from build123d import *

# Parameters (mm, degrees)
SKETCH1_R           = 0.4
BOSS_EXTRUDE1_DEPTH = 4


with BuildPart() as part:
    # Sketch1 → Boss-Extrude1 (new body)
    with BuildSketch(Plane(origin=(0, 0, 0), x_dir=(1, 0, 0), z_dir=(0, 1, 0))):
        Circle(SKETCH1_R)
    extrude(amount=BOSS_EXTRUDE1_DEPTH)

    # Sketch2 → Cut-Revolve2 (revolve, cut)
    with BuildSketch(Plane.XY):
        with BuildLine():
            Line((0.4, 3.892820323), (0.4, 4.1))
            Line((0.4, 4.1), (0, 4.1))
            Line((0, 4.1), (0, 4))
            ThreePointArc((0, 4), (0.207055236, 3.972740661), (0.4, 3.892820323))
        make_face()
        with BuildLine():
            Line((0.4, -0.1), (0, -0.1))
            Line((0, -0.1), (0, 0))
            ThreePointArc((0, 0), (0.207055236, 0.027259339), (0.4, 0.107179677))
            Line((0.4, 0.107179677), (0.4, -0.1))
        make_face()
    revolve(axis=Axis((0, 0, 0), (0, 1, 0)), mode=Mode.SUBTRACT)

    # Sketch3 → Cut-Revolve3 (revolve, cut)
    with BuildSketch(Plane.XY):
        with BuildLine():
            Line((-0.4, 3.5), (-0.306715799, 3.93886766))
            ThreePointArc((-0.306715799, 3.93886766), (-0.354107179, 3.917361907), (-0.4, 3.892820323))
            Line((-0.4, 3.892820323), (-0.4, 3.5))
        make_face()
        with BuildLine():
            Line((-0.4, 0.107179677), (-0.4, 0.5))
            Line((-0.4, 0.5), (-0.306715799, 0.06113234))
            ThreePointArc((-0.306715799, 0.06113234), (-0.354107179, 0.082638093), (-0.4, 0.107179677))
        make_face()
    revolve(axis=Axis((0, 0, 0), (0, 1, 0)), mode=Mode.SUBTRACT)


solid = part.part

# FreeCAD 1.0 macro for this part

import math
import FreeCAD as App
import Part
import Sketcher
from FreeCAD import Vector
Q = App.Units.Quantity

doc = App.newDocument("Part")
body = doc.addObject("PartDesign::Body", "Body")

sketch1 = body.newObject("Sketcher::SketchObject", "Sketch")
sketch1.AttachmentSupport = (doc.getObject("XZ_Plane"), [""])
sketch1.MapMode = "FlatFace"
sketch1.addGeometry(Part.Circle(Vector(0, 0, 0), Vector(0, 0, 1), 0.4), False)
sketch1.addConstraint([
    Sketcher.Constraint("Coincident", 0, 3, -1, 1),
    Sketcher.Constraint("Diameter", 0, Q("0.8 mm")),
])
pad1 = body.newObject("PartDesign::Pad", "Pad")
pad1.Profile = sketch1
pad1.Length = 4
pad1.Reversed = True

sketch2 = body.newObject("Sketcher::SketchObject", "Sketch001")
sketch2.AttachmentSupport = (doc.getObject("XY_Plane"), [""])
sketch2.MapMode = "FlatFace"
sketch2.addGeometry([
    Part.LineSegment(Vector(0.4, 3.89, 0), Vector(0.4, 4.1, 0)),
    Part.LineSegment(Vector(0.4, 4.1, 0), Vector(0, 4.1, 0)),
    Part.LineSegment(Vector(0, 4.1, 0), Vector(0, 4, 0)),
    Part.ArcOfCircle(Part.Circle(Vector(0, 3.2, 0), Vector(0, 0, 1), 0.8), math.radians(60), math.radians(90)),
    Part.LineSegment(Vector(0, -0.1, 0), Vector(0.4, -0.1, 0)),
    Part.LineSegment(Vector(0.4, -0.1, 0), Vector(0.4, 0.11, 0)),
    Part.ArcOfCircle(Part.Circle(Vector(0, 0.8, 0), Vector(0, 0, 1), 0.8), math.radians(-90), math.radians(-60)),
    Part.LineSegment(Vector(0, 0, 0), Vector(0, -0.1, 0)),
], False)
sketch2.addConstraint([
    Sketcher.Constraint("Coincident", 0, 2, 1, 1),
    Sketcher.Constraint("Coincident", 1, 2, 2, 1),
    Sketcher.Constraint("Coincident", 2, 2, 3, 2),
    Sketcher.Constraint("Coincident", 3, 1, 0, 1),
    Sketcher.Constraint("Coincident", 4, 2, 5, 1),
    Sketcher.Constraint("Coincident", 5, 2, 6, 2),
    Sketcher.Constraint("Coincident", 6, 1, 7, 1),
    Sketcher.Constraint("Coincident", 7, 2, 4, 1),
    Sketcher.Constraint("Vertical", 0),
    Sketcher.Constraint("Horizontal", 1),
    Sketcher.Constraint("Vertical", 2),
    Sketcher.Constraint("Horizontal", 4),
    Sketcher.Constraint("Vertical", 5),
    Sketcher.Constraint("Vertical", 7),
    Sketcher.Constraint("Coincident", 6, 1, -1, 1),
    Sketcher.Constraint("Equal", 3, 6),
    Sketcher.Constraint("PointOnObject", 3, 3, -2),
    Sketcher.Constraint("PointOnObject", 6, 3, -2),
    Sketcher.Constraint("PointOnObject", 1, 2, -2),
    Sketcher.Constraint("Vertical", 3, 1, 4, 2),
    Sketcher.Constraint("Equal", 0, 5),
    Sketcher.Constraint("Radius", 3, Q("0.8 mm")),
    Sketcher.Constraint("DistanceX", 1, 2, 1, 1, Q("0.4 mm")),
    Sketcher.Constraint("DistanceY", 2, 2, 2, 1, Q("0.1 mm")),
    Sketcher.Constraint("DistanceY", -1, 1, 2, 2, Q("4 mm")),
])
groove = body.newObject("PartDesign::Groove", "Groove")
groove.Profile = sketch2
groove.ReferenceAxis = (sketch2, ["V_Axis"])
groove.Angle = 360

sketch3 = body.newObject("Sketcher::SketchObject", "Sketch002")
sketch3.AttachmentSupport = (doc.getObject("XY_Plane"), [""])
sketch3.MapMode = "FlatFace"
sketch3.addGeometry([
    Part.LineSegment(Vector(-0.4, 3.5, 0), Vector(-0.31, 3.94, 0)),
    Part.ArcOfCircle(Part.Circle(Vector(0, 3.2, 0), Vector(0, 0, 1), 0.8), math.radians(112.54), math.radians(120)),
    Part.LineSegment(Vector(-0.4, 3.89, 0), Vector(-0.4, 3.5, 0)),
    Part.LineSegment(Vector(-0.4, 0.5, 0), Vector(-0.4, 0.11, 0)),
    Part.ArcOfCircle(Part.Circle(Vector(0, 0.8, 0), Vector(0, 0, 1), 0.8), math.radians(-120), math.radians(-112.54)),
    Part.LineSegment(Vector(-0.31, 0.06, 0), Vector(-0.4, 0.5, 0)),
], False)
sketch3.addConstraint([
    Sketcher.Constraint("Coincident", 0, 2, 1, 1),
    Sketcher.Constraint("Coincident", 1, 2, 2, 1),
    Sketcher.Constraint("Coincident", 2, 2, 0, 1),
    Sketcher.Constraint("Coincident", 3, 2, 4, 1),
    Sketcher.Constraint("Coincident", 4, 2, 5, 1),
    Sketcher.Constraint("Coincident", 5, 2, 3, 1),
    Sketcher.Constraint("Vertical", 2),
    Sketcher.Constraint("Vertical", 3),
    Sketcher.Constraint("Equal", 1, 4),
    Sketcher.Constraint("PointOnObject", 1, 3, -2),
    Sketcher.Constraint("PointOnObject", 4, 3, -2),
    Sketcher.Constraint("Vertical", 2, 2, 3, 2),
    Sketcher.Constraint("Vertical", 0, 2, 4, 2),
    Sketcher.Constraint("Equal", 2, 3),
    Sketcher.Constraint("Radius", 1, Q("0.8 mm")),
    Sketcher.Constraint("Angle", 0, Q("78 deg")),
    Sketcher.Constraint("DistanceY", 5, 2, 2, 2, Q("3 mm")),
    Sketcher.Constraint("DistanceY", -1, 1, 1, 3, Q("3.2 mm")),
    Sketcher.Constraint("DistanceY", -1, 1, 4, 3, Q("0.8 mm")),
    Sketcher.Constraint("DistanceX", 1, 2, -1, 1, Q("0.4 mm")),
])
groove2 = body.newObject("PartDesign::Groove", "Groove001")
groove2.Profile = sketch3
groove2.ReferenceAxis = (sketch3, ["V_Axis"])
groove2.Angle = 360

doc.recompute()
